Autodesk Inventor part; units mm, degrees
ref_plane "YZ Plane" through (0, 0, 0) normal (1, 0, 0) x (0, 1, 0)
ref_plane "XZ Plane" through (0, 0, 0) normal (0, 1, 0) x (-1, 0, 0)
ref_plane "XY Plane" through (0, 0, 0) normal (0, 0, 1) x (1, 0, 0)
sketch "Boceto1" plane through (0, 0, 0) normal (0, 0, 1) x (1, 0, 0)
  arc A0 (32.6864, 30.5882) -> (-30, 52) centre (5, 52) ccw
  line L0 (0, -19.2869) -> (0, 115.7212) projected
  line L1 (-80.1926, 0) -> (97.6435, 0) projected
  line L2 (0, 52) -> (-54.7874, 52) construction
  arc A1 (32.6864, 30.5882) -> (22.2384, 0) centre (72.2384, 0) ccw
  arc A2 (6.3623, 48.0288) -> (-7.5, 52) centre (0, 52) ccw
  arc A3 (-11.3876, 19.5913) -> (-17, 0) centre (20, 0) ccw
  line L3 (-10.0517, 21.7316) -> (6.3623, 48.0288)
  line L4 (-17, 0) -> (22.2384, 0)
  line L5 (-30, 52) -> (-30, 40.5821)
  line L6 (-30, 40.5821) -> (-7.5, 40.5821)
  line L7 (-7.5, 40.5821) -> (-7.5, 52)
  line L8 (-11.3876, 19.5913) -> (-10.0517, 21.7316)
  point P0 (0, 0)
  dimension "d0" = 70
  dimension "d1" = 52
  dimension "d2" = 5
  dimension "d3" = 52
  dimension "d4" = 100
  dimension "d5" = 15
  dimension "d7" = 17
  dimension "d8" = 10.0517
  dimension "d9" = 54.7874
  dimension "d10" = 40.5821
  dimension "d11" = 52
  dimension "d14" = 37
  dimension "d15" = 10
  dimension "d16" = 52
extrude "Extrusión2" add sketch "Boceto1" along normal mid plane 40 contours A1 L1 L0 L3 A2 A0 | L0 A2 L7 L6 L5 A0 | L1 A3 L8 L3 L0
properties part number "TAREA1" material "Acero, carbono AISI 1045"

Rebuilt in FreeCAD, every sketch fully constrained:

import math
import FreeCAD as App
import Part
import Sketcher

doc = App.newDocument("Part")
body = doc.addObject("PartDesign::Body", "Body")

# Sketch on XY plane
sketch1 = doc.addObject("Sketcher::SketchObject", "Sketch")
body.addObject(sketch1)
sketch1.AttachmentSupport = (doc.XY_Plane, [""])
sketch1.MapMode = "FlatFace"
sketch1.addGeometry(Part.ArcOfCircle(Part.Circle(App.Vector(72.2384, 0, 0), App.Vector(0, 0, 1), 49.999987), math.radians(142.282827), math.radians(180)), False)
sketch1.addGeometry(Part.ArcOfCircle(Part.Circle(App.Vector(5, 52, 0), App.Vector(0, 0, 1), 35.000027), math.radians(-37.717251), math.radians(180)), False)
sketch1.addGeometry(Part.LineSegment(App.Vector(-30, 52, 0), App.Vector(-30, 40.5821, 0)), False)
sketch1.addGeometry(Part.LineSegment(App.Vector(-30, 40.5821, 0), App.Vector(-7.5, 40.5821, 0)), False)
sketch1.addGeometry(Part.LineSegment(App.Vector(-7.5, 40.5821, 0), App.Vector(-7.5, 52, 0)), False)
sketch1.addGeometry(Part.ArcOfCircle(Part.Circle(App.Vector(0, 52, 0), App.Vector(0, 0, 1), 7.499953), math.radians(-31.971453), math.radians(180)), False)
sketch1.addGeometry(Part.LineSegment(App.Vector(6.3623, 48.0288, 0), App.Vector(-10.0517, 21.7316, 0)), False)
sketch1.addGeometry(Part.LineSegment(App.Vector(-10.0517, 21.7316, 0), App.Vector(-11.3876, 19.5913, 0)), False)
sketch1.addGeometry(Part.ArcOfCircle(Part.Circle(App.Vector(20, 0, 0), App.Vector(0, 0, 1), 37.000006), math.radians(148.028693), math.radians(180)), False)
sketch1.addGeometry(Part.LineSegment(App.Vector(-17, 0, 0), App.Vector(22.2384, 0, 0)), False)
sketch1.addConstraint(Sketcher.Constraint("Tangent", 0, 1, 1, 1))
sketch1.addConstraint(Sketcher.Constraint("Tangent", 1, 2, 2, 1))
sketch1.addConstraint(Sketcher.Constraint("Coincident", 2, 2, 3, 1))
sketch1.addConstraint(Sketcher.Constraint("Coincident", 3, 2, 4, 1))
sketch1.addConstraint(Sketcher.Constraint("Tangent", 4, 2, 5, 2))
sketch1.addConstraint(Sketcher.Constraint("Tangent", 5, 1, 6, 1))
sketch1.addConstraint(Sketcher.Constraint("Coincident", 6, 2, 7, 1))
sketch1.addConstraint(Sketcher.Constraint("Tangent", 7, 2, 8, 1))
sketch1.addConstraint(Sketcher.Constraint("Coincident", 8, 2, 9, 1))
sketch1.addConstraint(Sketcher.Constraint("Coincident", 9, 2, 0, 2))
sketch1.addConstraint(Sketcher.Constraint("Vertical", 2))
sketch1.addConstraint(Sketcher.Constraint("Horizontal", 3))
sketch1.addConstraint(Sketcher.Constraint("Vertical", 4))
sketch1.addConstraint(Sketcher.Constraint("Horizontal", 9))
sketch1.addConstraint(Sketcher.Constraint("PointOnObject", 0, 3, -1))
sketch1.addConstraint(Sketcher.Constraint("PointOnObject", 5, 3, -2))
sketch1.addConstraint(Sketcher.Constraint("PointOnObject", 8, 3, -1))
sketch1.addConstraint(Sketcher.Constraint("PointOnObject", 8, 2, -1))
sketch1.addConstraint(Sketcher.Constraint("Parallel", 6, 7))
sketch1.addConstraint(Sketcher.Constraint("Horizontal", 1, 3, 5, 3))
sketch1.addConstraint(Sketcher.Constraint("Radius", 0, 50.0))
sketch1.addConstraint(Sketcher.Constraint("Radius", 1, 35.0))
sketch1.addConstraint(Sketcher.Constraint("Radius", 8, 37.0))
sketch1.addConstraint(Sketcher.Constraint("Radius", 5, 7.5))
sketch1.addConstraint(Sketcher.Constraint("DistanceX", -1, 1, 1, 3, 5.0))
sketch1.addConstraint(Sketcher.Constraint("DistanceY", -1, 1, 1, 3, 52.0))
sketch1.addConstraint(Sketcher.Constraint("DistanceX", 8, 2, -1, 1, 17.0))
sketch1.addConstraint(Sketcher.Constraint("DistanceY", -1, 1, 2, 2, 40.582))
sketch1.addConstraint(Sketcher.Constraint("DistanceX", 6, 2, -1, 1, 10.0517))
pad1 = doc.addObject("PartDesign::Pad", "Pad")
body.addObject(pad1)
pad1.Profile = sketch1
pad1.Length = 40
pad1.Midplane = True

doc.recompute()
